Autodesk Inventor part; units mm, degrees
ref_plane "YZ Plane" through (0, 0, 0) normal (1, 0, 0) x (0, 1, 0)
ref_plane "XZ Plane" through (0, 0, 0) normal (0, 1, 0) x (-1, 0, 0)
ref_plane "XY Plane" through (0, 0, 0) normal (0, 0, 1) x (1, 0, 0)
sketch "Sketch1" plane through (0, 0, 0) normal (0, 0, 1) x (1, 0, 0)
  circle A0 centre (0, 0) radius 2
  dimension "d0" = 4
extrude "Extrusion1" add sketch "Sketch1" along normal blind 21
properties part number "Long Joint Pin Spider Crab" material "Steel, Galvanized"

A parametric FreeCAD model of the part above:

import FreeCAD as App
import Part
import Sketcher
from FreeCAD import Vector
Q = App.Units.Quantity

doc = App.newDocument("Part")
params = doc.addObject("Spreadsheet::Sheet", "Params")
for row, (alias, value) in enumerate([
    ("sketch1_diameter", "4 mm"),
    ("pad1_length", "21 mm"),
], start=1):
    params.set(f"A{row}", alias)
    params.set(f"B{row}", "=" + value)
    params.setAlias(f"B{row}", alias)

body = doc.addObject("PartDesign::Body", "Body")

# Sketch on XY plane
sketch1 = doc.addObject("Sketcher::SketchObject", "Sketch")
body.addObject(sketch1)
sketch1.AttachmentSupport = (doc.XY_Plane, [""])
sketch1.MapMode = "FlatFace"
sketch1.addGeometry(Part.Circle(Vector(0, 0, 0), Vector(0, 0, 1), 2), False)
sketch1.addConstraint(Sketcher.Constraint("Coincident", 0, 3, -1, 1))
sketch1.addConstraint(Sketcher.Constraint("Diameter", 0, Q("4 mm")))
sketch1.setExpression("Constraints[1]", "Params.sketch1_diameter")
pad1 = doc.addObject("PartDesign::Pad", "Pad")
body.addObject(pad1)
pad1.Profile = sketch1
pad1.setExpression("Length", "Params.pad1_length")

doc.recompute()
